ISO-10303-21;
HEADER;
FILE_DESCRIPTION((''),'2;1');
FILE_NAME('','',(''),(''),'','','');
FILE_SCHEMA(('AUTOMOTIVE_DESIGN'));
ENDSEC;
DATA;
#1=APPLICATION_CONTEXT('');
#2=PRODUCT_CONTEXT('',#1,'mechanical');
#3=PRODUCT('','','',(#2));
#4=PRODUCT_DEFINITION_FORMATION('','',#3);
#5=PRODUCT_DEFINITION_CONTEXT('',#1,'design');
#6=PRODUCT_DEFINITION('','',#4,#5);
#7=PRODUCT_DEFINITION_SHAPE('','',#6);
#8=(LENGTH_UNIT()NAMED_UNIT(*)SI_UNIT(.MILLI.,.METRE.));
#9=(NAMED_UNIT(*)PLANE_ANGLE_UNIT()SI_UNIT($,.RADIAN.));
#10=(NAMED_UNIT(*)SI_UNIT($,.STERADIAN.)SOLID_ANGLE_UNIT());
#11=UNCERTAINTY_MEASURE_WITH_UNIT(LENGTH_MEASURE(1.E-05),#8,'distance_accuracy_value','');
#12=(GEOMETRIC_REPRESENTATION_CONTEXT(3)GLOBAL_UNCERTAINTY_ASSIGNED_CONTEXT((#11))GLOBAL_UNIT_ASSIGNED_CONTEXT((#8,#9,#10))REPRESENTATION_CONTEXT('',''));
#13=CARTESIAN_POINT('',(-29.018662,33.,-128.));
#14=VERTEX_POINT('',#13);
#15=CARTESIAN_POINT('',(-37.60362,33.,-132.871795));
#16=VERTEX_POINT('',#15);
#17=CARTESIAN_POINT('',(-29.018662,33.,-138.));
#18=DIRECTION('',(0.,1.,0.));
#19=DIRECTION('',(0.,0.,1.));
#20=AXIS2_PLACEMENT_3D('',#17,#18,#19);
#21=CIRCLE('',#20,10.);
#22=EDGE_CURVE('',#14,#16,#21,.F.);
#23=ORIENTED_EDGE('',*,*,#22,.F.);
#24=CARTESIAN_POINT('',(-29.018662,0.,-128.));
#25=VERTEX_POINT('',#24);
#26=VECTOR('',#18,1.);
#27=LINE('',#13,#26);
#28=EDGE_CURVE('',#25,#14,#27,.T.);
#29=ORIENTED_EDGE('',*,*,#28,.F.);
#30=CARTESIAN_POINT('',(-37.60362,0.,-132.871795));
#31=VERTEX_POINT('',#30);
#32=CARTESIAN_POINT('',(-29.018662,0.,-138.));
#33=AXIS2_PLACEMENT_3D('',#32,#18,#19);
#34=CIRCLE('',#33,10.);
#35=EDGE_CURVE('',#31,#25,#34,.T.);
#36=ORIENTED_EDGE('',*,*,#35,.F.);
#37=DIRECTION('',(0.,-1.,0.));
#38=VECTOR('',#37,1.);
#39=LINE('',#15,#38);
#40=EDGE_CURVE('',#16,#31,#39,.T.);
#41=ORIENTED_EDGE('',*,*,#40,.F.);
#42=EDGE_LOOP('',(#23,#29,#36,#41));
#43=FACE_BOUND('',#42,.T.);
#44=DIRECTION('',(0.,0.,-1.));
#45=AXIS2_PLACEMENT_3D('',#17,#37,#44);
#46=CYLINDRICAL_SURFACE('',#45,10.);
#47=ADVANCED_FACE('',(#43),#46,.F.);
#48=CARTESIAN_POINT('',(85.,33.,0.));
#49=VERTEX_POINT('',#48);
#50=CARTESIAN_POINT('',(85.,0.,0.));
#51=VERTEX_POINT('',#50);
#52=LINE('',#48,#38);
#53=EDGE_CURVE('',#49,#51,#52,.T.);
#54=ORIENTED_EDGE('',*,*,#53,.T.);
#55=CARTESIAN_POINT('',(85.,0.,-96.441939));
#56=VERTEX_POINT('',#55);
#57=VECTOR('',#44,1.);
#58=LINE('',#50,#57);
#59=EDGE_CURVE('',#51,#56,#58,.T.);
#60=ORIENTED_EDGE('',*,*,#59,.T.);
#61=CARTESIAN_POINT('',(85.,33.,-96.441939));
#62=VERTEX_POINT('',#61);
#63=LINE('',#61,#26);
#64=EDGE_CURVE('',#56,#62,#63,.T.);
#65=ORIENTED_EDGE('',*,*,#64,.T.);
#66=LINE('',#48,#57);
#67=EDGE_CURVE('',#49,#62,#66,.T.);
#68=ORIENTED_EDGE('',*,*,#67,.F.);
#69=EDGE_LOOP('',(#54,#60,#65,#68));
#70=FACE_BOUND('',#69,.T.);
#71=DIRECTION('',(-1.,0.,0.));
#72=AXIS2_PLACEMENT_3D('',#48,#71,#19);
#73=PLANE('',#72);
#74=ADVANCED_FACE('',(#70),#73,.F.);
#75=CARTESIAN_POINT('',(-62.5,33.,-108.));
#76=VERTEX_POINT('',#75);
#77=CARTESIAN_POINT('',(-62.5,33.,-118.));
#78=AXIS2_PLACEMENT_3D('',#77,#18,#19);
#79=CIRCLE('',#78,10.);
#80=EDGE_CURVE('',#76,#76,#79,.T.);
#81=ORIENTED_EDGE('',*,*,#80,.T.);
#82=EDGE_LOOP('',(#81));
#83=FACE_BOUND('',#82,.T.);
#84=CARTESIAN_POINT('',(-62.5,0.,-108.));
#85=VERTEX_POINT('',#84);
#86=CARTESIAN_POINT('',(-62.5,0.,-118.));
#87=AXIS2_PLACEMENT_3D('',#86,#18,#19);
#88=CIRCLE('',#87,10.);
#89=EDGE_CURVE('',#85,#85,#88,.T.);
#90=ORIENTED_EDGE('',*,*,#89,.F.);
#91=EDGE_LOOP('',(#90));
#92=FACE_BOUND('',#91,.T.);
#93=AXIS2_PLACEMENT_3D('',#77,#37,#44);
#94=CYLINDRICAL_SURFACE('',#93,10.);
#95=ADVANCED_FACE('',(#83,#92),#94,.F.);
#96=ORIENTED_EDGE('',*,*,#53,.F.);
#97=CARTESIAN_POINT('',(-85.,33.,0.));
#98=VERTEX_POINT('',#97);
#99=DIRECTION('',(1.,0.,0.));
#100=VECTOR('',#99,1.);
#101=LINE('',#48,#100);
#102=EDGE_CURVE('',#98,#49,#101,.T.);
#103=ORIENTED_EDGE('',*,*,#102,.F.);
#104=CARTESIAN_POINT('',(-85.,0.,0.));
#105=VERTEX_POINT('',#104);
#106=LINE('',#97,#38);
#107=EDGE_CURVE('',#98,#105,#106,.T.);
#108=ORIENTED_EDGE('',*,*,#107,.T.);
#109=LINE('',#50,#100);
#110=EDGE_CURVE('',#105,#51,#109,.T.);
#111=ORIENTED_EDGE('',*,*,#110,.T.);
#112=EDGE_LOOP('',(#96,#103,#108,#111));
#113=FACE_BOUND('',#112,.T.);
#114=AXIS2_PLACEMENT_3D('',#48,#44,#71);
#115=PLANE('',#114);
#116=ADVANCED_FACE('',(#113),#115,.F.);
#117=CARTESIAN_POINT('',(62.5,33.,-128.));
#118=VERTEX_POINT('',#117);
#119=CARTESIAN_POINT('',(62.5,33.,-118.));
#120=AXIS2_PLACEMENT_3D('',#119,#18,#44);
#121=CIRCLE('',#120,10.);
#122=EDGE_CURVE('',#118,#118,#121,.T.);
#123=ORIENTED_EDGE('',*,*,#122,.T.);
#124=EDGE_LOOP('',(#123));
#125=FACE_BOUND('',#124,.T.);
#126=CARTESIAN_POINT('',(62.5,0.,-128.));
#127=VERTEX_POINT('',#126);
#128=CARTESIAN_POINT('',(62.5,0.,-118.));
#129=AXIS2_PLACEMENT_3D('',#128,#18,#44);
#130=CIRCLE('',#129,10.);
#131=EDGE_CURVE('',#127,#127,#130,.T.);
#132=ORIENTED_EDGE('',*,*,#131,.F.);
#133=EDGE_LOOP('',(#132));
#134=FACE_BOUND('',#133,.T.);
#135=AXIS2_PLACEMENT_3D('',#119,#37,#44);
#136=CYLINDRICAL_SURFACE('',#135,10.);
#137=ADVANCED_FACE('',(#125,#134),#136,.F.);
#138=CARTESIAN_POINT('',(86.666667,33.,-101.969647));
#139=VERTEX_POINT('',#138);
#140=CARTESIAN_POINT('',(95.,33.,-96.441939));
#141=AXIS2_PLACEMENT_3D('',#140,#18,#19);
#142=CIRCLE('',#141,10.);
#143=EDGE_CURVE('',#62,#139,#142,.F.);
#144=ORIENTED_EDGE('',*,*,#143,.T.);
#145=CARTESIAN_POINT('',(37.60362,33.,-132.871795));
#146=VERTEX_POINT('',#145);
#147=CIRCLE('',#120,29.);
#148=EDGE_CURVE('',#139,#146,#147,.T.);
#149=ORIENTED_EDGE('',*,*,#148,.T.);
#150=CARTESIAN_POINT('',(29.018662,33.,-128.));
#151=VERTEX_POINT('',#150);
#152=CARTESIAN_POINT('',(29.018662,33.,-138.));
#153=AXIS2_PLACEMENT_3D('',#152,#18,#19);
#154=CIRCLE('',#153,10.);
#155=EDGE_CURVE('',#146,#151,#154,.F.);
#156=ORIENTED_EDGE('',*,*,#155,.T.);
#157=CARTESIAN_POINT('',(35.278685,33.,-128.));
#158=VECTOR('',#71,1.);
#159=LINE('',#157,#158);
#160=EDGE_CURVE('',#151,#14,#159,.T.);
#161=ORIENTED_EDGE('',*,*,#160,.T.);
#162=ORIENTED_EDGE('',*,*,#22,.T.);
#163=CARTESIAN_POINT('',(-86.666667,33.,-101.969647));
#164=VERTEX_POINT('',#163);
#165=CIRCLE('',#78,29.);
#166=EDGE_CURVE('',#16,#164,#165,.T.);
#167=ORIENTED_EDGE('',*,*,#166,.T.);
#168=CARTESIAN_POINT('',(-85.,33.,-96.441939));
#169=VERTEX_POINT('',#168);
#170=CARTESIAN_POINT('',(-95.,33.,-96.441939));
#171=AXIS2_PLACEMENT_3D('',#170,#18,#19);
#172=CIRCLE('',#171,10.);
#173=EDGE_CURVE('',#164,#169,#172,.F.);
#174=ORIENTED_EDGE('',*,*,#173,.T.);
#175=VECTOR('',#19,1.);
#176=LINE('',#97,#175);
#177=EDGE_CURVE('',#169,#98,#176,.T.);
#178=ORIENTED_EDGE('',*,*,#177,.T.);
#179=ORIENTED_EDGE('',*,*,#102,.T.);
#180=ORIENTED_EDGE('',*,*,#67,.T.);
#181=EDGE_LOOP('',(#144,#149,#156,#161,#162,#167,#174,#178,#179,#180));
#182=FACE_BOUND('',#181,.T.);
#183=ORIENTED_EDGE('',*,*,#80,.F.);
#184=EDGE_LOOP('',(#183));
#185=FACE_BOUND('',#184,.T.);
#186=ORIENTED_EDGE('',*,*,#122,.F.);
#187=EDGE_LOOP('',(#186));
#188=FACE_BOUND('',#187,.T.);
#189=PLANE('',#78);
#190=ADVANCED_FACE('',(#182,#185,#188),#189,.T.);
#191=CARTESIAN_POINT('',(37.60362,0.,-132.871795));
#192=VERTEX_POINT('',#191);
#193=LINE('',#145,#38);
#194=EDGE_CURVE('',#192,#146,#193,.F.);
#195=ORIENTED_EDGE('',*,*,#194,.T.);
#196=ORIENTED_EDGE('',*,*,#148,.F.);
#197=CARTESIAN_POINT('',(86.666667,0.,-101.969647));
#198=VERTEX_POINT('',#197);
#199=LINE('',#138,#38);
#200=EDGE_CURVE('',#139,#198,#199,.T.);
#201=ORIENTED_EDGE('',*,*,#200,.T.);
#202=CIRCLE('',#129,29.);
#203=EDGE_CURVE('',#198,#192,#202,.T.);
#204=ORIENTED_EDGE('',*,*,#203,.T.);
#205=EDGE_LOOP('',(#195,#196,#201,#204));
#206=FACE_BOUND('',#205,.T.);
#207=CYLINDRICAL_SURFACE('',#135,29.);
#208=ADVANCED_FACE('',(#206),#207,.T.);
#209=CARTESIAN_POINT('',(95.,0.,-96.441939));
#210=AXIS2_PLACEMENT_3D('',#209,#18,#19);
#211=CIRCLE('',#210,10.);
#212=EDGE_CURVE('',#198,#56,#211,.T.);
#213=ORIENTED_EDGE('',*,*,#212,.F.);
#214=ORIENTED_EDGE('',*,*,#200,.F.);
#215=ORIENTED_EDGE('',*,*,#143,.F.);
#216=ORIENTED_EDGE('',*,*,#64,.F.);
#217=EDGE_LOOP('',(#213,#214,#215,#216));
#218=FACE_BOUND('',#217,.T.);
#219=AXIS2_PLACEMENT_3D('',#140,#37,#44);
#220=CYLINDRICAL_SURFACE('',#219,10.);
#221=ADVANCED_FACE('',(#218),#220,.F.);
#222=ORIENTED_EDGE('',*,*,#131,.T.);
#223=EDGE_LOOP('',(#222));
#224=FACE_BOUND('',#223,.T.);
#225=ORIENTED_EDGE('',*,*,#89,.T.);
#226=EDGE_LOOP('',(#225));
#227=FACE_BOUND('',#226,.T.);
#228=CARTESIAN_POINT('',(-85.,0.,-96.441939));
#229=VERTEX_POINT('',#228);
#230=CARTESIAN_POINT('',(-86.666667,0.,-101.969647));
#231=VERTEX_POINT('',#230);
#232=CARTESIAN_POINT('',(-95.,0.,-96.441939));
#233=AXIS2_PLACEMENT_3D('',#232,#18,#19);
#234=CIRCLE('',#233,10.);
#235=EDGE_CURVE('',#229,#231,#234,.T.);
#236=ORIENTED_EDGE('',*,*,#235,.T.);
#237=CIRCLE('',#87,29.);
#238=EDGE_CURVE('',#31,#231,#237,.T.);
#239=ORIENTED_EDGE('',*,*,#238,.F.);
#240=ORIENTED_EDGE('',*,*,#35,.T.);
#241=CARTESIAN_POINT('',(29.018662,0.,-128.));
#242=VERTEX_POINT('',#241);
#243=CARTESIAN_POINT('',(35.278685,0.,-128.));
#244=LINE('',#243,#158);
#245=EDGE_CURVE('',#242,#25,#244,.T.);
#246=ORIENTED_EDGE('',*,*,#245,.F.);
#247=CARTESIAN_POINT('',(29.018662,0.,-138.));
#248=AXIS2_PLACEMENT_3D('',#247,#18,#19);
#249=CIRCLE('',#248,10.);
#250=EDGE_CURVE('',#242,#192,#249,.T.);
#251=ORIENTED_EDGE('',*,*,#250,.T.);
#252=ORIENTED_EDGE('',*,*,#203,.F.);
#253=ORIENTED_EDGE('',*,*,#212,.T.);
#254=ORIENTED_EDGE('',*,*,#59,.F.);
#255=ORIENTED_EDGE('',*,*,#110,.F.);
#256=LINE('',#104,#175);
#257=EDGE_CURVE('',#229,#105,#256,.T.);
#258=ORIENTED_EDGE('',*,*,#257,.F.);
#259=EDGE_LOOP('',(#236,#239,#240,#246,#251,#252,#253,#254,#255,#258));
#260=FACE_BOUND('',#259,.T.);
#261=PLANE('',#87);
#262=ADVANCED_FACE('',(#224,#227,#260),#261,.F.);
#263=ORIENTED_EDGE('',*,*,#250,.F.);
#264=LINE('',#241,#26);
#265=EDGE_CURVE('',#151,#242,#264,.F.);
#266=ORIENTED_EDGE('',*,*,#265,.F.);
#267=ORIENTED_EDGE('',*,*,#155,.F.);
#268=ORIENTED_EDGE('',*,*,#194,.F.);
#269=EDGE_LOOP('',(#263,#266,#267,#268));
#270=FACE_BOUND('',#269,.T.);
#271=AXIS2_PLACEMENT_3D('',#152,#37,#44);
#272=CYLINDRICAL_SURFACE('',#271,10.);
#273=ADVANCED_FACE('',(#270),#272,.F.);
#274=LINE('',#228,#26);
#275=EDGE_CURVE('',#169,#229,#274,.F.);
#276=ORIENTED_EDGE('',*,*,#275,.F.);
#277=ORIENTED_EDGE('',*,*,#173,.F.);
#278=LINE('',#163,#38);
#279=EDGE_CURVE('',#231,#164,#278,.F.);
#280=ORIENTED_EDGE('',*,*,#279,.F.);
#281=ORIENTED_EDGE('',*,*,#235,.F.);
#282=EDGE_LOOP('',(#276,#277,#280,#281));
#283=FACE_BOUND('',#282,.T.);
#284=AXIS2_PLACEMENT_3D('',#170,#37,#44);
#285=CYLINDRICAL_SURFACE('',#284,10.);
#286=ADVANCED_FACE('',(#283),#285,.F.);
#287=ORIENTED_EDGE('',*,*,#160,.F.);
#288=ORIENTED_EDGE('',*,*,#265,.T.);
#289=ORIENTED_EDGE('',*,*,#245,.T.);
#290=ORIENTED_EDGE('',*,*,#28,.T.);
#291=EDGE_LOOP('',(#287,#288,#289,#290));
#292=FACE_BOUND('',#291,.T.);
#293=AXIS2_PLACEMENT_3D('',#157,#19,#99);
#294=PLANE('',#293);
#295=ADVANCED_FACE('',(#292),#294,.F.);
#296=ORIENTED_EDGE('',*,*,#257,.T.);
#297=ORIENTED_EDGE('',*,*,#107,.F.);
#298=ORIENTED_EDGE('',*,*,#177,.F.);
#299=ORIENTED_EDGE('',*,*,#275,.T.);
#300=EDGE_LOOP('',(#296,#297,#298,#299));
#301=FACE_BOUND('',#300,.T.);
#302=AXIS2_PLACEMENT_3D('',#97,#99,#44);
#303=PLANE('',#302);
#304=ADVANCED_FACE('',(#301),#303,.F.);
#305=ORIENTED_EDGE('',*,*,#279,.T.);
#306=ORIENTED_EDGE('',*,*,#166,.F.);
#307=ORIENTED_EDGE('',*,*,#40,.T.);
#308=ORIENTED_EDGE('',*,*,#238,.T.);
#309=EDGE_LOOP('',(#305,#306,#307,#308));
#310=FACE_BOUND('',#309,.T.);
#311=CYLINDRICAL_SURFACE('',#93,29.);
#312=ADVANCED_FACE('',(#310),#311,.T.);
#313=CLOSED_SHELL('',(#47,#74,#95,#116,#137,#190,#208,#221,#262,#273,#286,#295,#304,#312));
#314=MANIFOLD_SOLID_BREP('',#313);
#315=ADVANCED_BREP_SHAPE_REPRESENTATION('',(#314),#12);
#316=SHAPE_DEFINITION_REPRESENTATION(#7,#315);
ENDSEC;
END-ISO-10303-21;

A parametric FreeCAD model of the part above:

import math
import FreeCAD as App
import Part
import Sketcher

V = App.Vector
Q = App.Units.Quantity


def edges_at(feature, points):
    """Names of the edges that pass closest to the given points."""
    edges = feature.Shape.Edges
    near = lambda p: min(range(len(edges)), key=lambda i: edges[i].distToShape(Part.Vertex(*p))[0])
    return sorted({f"Edge{near(p) + 1}" for p in points})

doc = App.newDocument("Part")
body = doc.addObject("PartDesign::Body", "Body")

sketch1 = body.newObject("Sketcher::SketchObject", "Sketch")
sketch1.AttachmentSupport = (doc.getObject("XZ_Plane"), [""])
sketch1.MapMode = "FlatFace"
sketch1.addGeometry([
    Part.LineSegment(V(-85, 0, 0), V(85, 0, 0)),
    Part.LineSegment(V(85, 0, 0), V(85, -99.703826, 0)),
    Part.ArcOfCircle(Part.Circle(V(62.5, -118, 0), V(0, 0, 1), 29), math.radians(-159.828729), math.radians(39.116744)),
    Part.LineSegment(V(35.278685, -128, 0), V(-35.278685, -128, 0)),
    Part.ArcOfCircle(Part.Circle(V(-62.5, -118, 0), V(0, 0, 1), 29), math.radians(140.883256), math.radians(339.828729)),
    Part.LineSegment(V(-85, -99.703826, 0), V(-85, 0, 0)),
    Part.Circle(V(62.5, -118, 0), V(0, 0, 1), 10),
    Part.Circle(V(-62.5, -118, 0), V(0, 0, 1), 10),
], False)
sketch1.addConstraint([
    Sketcher.Constraint("Coincident", 0, 2, 1, 1),
    Sketcher.Constraint("Coincident", 1, 2, 2, 2),
    Sketcher.Constraint("Coincident", 2, 1, 3, 1),
    Sketcher.Constraint("Coincident", 3, 2, 4, 2),
    Sketcher.Constraint("Coincident", 4, 1, 5, 1),
    Sketcher.Constraint("Coincident", 5, 2, 0, 1),
    Sketcher.Constraint("Horizontal", 0),
    Sketcher.Constraint("Vertical", 1),
    Sketcher.Constraint("Horizontal", 3),
    Sketcher.Constraint("Vertical", 5),
    Sketcher.Constraint("Coincident", 6, 3, 2, 3),
    Sketcher.Constraint("Coincident", 7, 3, 4, 3),
    Sketcher.Constraint("Equal", 2, 4),
    Sketcher.Constraint("Equal", 6, 7),
    Sketcher.Constraint("Symmetric", 0, 2, 5, 2, -1, 1),
    Sketcher.Constraint("Symmetric", 2, 3, 4, 3, -2),
    Sketcher.Constraint("Diameter", 6, Q("20 mm")),
    Sketcher.Constraint("Radius", 2, Q("29 mm")),
    Sketcher.Constraint("DistanceX", 0, 1, 0, 2, Q("170 mm")),
    Sketcher.Constraint("DistanceY", 2, 3, -1, 1, Q("118 mm")),
    Sketcher.Constraint("DistanceY", 2, 1, -1, 1, Q("128 mm")),
    Sketcher.Constraint("DistanceX", 4, 3, 2, 3, Q("125 mm")),
])
pad1 = body.newObject("PartDesign::Pad", "Pad")
pad1.Profile = sketch1
pad1.Length = 33
pad1.Reversed = True
doc.recompute()

fillet = body.newObject("PartDesign::Fillet", "Fillet")
fillet.Base = (pad1, edges_at(pad1, [
    (-85, 16.5, -99.704),
    (-35.279, 16.5, -128),
    (35.279, 16.5, -128),
    (85, 16.5, -99.704),
]))
fillet.Radius = 10

doc.recompute()
